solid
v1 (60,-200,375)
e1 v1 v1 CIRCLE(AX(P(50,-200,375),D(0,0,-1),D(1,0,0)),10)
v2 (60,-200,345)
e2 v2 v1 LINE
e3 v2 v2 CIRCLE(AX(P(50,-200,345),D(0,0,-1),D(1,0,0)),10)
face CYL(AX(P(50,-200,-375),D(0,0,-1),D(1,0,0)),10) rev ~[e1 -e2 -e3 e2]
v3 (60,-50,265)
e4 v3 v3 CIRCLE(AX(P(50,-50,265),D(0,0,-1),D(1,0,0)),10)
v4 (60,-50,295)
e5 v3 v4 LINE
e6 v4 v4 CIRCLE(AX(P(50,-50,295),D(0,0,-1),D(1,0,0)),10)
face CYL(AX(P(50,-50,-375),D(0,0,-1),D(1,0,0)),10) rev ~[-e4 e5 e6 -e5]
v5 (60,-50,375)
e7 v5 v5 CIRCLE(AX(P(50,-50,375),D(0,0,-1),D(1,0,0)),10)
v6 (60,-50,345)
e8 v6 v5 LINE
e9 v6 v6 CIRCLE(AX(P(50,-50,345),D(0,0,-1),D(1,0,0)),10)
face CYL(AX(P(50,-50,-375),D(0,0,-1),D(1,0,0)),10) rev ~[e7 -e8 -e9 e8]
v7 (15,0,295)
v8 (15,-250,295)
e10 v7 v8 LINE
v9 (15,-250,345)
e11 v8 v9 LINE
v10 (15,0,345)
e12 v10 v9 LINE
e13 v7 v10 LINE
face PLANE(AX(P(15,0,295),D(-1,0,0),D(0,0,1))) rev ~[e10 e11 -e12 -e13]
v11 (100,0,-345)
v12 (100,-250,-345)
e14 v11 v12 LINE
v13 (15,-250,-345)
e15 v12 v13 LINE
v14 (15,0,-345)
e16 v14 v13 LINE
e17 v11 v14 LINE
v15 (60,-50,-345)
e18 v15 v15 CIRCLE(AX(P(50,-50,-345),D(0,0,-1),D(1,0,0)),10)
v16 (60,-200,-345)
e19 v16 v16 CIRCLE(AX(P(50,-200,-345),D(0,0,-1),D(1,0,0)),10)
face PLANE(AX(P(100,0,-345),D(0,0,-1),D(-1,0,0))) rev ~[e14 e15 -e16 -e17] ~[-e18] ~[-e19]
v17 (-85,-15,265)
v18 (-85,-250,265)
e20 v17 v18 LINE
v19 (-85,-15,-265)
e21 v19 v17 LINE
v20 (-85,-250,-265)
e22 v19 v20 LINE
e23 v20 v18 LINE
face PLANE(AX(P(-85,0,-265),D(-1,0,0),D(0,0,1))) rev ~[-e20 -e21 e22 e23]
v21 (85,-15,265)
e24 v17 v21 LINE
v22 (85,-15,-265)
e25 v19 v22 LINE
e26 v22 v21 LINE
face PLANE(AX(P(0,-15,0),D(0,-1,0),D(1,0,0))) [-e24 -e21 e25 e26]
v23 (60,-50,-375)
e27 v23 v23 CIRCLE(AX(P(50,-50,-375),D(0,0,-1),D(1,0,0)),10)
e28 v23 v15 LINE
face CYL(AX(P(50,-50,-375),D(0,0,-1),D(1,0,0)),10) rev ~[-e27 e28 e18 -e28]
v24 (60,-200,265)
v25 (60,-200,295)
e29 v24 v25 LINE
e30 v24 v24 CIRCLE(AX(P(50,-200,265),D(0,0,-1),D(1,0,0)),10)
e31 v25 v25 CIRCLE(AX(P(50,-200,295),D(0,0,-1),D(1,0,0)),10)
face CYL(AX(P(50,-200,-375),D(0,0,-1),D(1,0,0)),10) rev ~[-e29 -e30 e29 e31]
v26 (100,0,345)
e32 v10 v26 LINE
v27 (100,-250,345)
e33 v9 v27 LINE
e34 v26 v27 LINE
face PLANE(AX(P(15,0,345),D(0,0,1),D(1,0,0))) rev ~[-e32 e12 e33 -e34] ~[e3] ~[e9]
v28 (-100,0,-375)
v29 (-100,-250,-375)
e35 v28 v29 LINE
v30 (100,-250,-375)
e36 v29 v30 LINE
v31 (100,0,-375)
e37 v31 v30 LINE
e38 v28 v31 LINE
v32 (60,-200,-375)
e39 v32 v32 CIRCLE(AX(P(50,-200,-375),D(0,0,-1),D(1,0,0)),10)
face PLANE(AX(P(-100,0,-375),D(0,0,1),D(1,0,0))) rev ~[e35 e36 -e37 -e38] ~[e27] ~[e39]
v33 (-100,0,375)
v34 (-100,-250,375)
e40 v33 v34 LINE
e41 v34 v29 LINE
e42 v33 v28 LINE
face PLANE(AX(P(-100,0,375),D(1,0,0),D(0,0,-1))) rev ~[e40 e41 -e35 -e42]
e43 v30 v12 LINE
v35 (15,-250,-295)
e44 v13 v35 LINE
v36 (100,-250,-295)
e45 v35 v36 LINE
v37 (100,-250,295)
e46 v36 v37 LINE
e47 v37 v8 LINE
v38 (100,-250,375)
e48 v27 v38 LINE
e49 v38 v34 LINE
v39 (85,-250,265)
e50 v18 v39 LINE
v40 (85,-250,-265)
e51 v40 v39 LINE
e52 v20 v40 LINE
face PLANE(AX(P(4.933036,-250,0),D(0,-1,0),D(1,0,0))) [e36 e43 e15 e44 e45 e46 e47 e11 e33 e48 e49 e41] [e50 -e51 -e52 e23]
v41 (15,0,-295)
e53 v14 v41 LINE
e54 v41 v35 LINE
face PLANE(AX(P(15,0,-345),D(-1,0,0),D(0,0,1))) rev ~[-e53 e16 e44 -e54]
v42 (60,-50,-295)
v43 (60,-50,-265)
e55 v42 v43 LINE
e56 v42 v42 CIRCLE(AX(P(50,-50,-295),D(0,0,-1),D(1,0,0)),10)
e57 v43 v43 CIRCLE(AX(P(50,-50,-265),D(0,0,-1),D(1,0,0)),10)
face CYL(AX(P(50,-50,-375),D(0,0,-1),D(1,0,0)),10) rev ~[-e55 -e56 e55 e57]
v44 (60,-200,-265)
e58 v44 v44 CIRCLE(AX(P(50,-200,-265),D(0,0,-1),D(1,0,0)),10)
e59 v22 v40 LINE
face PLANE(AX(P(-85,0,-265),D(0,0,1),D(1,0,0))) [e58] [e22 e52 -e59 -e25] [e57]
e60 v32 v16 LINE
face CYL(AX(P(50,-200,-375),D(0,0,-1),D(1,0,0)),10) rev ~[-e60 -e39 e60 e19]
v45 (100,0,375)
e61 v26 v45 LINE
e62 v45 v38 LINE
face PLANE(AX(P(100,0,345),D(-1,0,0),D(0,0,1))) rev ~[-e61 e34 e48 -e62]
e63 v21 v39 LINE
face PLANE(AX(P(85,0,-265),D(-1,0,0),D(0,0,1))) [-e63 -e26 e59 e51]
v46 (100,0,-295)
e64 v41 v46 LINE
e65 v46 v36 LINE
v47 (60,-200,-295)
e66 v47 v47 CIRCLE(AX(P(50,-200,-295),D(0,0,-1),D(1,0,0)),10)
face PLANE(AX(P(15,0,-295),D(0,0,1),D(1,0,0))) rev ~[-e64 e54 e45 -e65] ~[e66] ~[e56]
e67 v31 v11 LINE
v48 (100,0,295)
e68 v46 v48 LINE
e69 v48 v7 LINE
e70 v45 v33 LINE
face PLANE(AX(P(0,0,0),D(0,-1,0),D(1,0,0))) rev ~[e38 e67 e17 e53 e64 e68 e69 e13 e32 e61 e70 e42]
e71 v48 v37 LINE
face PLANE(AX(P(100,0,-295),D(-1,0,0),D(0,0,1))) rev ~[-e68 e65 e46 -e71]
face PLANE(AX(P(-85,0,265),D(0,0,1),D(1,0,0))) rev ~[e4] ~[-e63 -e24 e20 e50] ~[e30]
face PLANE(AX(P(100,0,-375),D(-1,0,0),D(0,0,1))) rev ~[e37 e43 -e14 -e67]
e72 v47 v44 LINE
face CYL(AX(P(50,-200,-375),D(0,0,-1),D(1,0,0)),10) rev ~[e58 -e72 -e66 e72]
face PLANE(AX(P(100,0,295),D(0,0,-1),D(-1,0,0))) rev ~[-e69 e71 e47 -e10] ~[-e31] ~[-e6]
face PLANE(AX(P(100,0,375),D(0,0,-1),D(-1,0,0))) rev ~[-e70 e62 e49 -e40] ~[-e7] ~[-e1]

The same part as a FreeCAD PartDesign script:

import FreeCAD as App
import Part
import Sketcher
from FreeCAD import Vector
Q = App.Units.Quantity

doc = App.newDocument("Part")
params = doc.addObject("Spreadsheet::Sheet", "Params")
for row, (alias, value) in enumerate([
    ("sketch1_width", "200 mm"),
    ("sketch1_width2", "85 mm"),
    ("sketch1_width3", "170 mm"),
    ("sketch1_height", "30 mm"),
    ("sketch1_height2", "750 mm"),
    ("pad1_length", "250 mm"),
    ("sketch2_width", "170 mm"),
    ("sketch2_height", "530 mm"),
    ("pad2_length", "15 mm"),
    ("sketch3_diameter", "20 mm"),
    ("pocket1_length", "750 mm"),
], start=1):
    params.set(f"A{row}", alias)
    params.set(f"B{row}", "=" + value)
    params.setAlias(f"B{row}", alias)

body = doc.addObject("PartDesign::Body", "Body")

# Sketch on XZ plane
sketch1 = body.newObject("Sketcher::SketchObject", "Sketch")
sketch1.AttachmentSupport = (doc.getObject("XZ_Plane"), [""])
sketch1.MapMode = "FlatFace"
sketch1.addGeometry([
    Part.LineSegment(Vector(100, 345, 0), Vector(100, 375, 0)),  # 0
    Part.LineSegment(Vector(100, 375, 0), Vector(-100, 375, 0)),  # 1
    Part.LineSegment(Vector(-100, 375, 0), Vector(-100, -375, 0)),  # 2
    Part.LineSegment(Vector(-100, -375, 0), Vector(100, -375, 0)),  # 3
    Part.LineSegment(Vector(100, -375, 0), Vector(100, -345, 0)),  # 4
    Part.LineSegment(Vector(100, -345, 0), Vector(15, -345, 0)),  # 5
    Part.LineSegment(Vector(15, -345, 0), Vector(15, -295, 0)),  # 6
    Part.LineSegment(Vector(15, -295, 0), Vector(100, -295, 0)),  # 7
    Part.LineSegment(Vector(100, -295, 0), Vector(100, 295, 0)),  # 8
    Part.LineSegment(Vector(100, 295, 0), Vector(15, 295, 0)),  # 9
    Part.LineSegment(Vector(15, 295, 0), Vector(15, 345, 0)),  # 10
    Part.LineSegment(Vector(15, 345, 0), Vector(100, 345, 0)),  # 11
    Part.LineSegment(Vector(85, -265, 0), Vector(-85, -265, 0)),  # 12
    Part.LineSegment(Vector(-85, -265, 0), Vector(-85, 265, 0)),  # 13
    Part.LineSegment(Vector(-85, 265, 0), Vector(85, 265, 0)),  # 14
    Part.LineSegment(Vector(85, 265, 0), Vector(85, -265, 0)),  # 15
], False)
sketch1.addConstraint([
    Sketcher.Constraint("Coincident", 0, 2, 1, 1),
    Sketcher.Constraint("Coincident", 1, 2, 2, 1),
    Sketcher.Constraint("Coincident", 2, 2, 3, 1),
    Sketcher.Constraint("Coincident", 3, 2, 4, 1),
    Sketcher.Constraint("Coincident", 4, 2, 5, 1),
    Sketcher.Constraint("Coincident", 5, 2, 6, 1),
    Sketcher.Constraint("Coincident", 6, 2, 7, 1),
    Sketcher.Constraint("Coincident", 7, 2, 8, 1),
    Sketcher.Constraint("Coincident", 8, 2, 9, 1),
    Sketcher.Constraint("Coincident", 9, 2, 10, 1),
    Sketcher.Constraint("Coincident", 10, 2, 11, 1),
    Sketcher.Constraint("Coincident", 11, 2, 0, 1),
    Sketcher.Constraint("Coincident", 12, 2, 13, 1),
    Sketcher.Constraint("Coincident", 13, 2, 14, 1),
    Sketcher.Constraint("Coincident", 14, 2, 15, 1),
    Sketcher.Constraint("Coincident", 15, 2, 12, 1),
    Sketcher.Constraint("Vertical", 0),
    Sketcher.Constraint("Horizontal", 1),
    Sketcher.Constraint("Vertical", 2),
    Sketcher.Constraint("Horizontal", 3),
    Sketcher.Constraint("Vertical", 4),
    Sketcher.Constraint("Horizontal", 5),
    Sketcher.Constraint("Vertical", 6),
    Sketcher.Constraint("Horizontal", 7),
    Sketcher.Constraint("Vertical", 8),
    Sketcher.Constraint("Horizontal", 9),
    Sketcher.Constraint("Vertical", 10),
    Sketcher.Constraint("Horizontal", 11),
    Sketcher.Constraint("Horizontal", 12),
    Sketcher.Constraint("Vertical", 13),
    Sketcher.Constraint("Horizontal", 14),
    Sketcher.Constraint("Vertical", 15),
    Sketcher.Constraint("Symmetric", 0, 2, 2, 2, -1, 1),
    Sketcher.Constraint("Symmetric", 12, 2, 14, 2, -1, 1),
    Sketcher.Constraint("Symmetric", 6, 2, 9, 2, -1),
    Sketcher.Constraint("Symmetric", 4, 2, 11, 2, -1),
    Sketcher.Constraint("Vertical", 4, 2, 7, 2),
    Sketcher.Constraint("DistanceX", 1, 2, 1, 1, Q("200 mm")),
    Sketcher.Constraint("DistanceX", 5, 2, 5, 1, Q("85 mm")),
    Sketcher.Constraint("DistanceX", 12, 2, 12, 1, Q("170 mm")),
    Sketcher.Constraint("DistanceY", 0, 1, 0, 2, Q("30 mm")),
    Sketcher.Constraint("DistanceY", 2, 2, 2, 1, Q("750 mm")),
    Sketcher.Constraint("DistanceY", 6, 1, 6, 2, Q("50 mm")),
    Sketcher.Constraint("DistanceY", 13, 1, 13, 2, Q("530 mm")),
])
sketch1.setExpression("Constraints[37]", "Params.sketch1_width")
sketch1.setExpression("Constraints[38]", "Params.sketch1_width2")
sketch1.setExpression("Constraints[39]", "Params.sketch1_width3")
sketch1.setExpression("Constraints[40]", "Params.sketch1_height")
sketch1.setExpression("Constraints[41]", "Params.sketch1_height2")
pad1 = body.newObject("PartDesign::Pad", "Pad")
pad1.Profile = sketch1
pad1.setExpression("Length", "Params.pad1_length")

# Sketch on XZ plane
sketch2 = body.newObject("Sketcher::SketchObject", "Sketch001")
sketch2.AttachmentSupport = (doc.getObject("XZ_Plane"), [""])
sketch2.MapMode = "FlatFace"
sketch2.addGeometry([
    Part.LineSegment(Vector(-85, 265, 0), Vector(-85, -265, 0)),
    Part.LineSegment(Vector(-85, -265, 0), Vector(85, -265, 0)),
    Part.LineSegment(Vector(85, -265, 0), Vector(85, 265, 0)),
    Part.LineSegment(Vector(85, 265, 0), Vector(-85, 265, 0)),
], False)
sketch2.addConstraint([
    Sketcher.Constraint("Coincident", 0, 2, 1, 1),
    Sketcher.Constraint("Coincident", 1, 2, 2, 1),
    Sketcher.Constraint("Coincident", 2, 2, 3, 1),
    Sketcher.Constraint("Coincident", 3, 2, 0, 1),
    Sketcher.Constraint("Vertical", 0),
    Sketcher.Constraint("Horizontal", 1),
    Sketcher.Constraint("Vertical", 2),
    Sketcher.Constraint("Horizontal", 3),
    Sketcher.Constraint("Symmetric", 0, 2, 2, 2, -1, 1),
    Sketcher.Constraint("DistanceX", 1, 1, 1, 2, Q("170 mm")),
    Sketcher.Constraint("DistanceY", 0, 2, 0, 1, Q("530 mm")),
])
sketch2.setExpression("Constraints[9]", "Params.sketch2_width")
sketch2.setExpression("Constraints[10]", "Params.sketch2_height")
pad2 = body.newObject("PartDesign::Pad", "Pad001")
pad2.Profile = sketch2
pad2.setExpression("Length", "Params.pad2_length")

# Sketch on XY plane
sketch3 = body.newObject("Sketcher::SketchObject", "Sketch002")
sketch3.AttachmentSupport = (doc.getObject("XY_Plane"), [""])
sketch3.MapMode = "FlatFace"
sketch3.AttachmentOffset = App.Placement(Vector(0, 0, -375), App.Rotation())
sketch3.addGeometry([
    Part.Circle(Vector(50, -200, 0), Vector(0, 0, 1), 10),
    Part.Circle(Vector(50, -50, 0), Vector(0, 0, 1), 10),
], False)
sketch3.addConstraint([
    Sketcher.Constraint("Equal", 0, 1),
    Sketcher.Constraint("Vertical", 0, 3, 1, 3),
    Sketcher.Constraint("Diameter", 0, Q("20 mm")),
    Sketcher.Constraint("DistanceX", -1, 1, 0, 3, Q("50 mm")),
    Sketcher.Constraint("DistanceY", 0, 3, -1, 1, Q("200 mm")),
    Sketcher.Constraint("DistanceY", 1, 3, -1, 1, Q("50 mm")),
])
sketch3.setExpression("Constraints[2]", "Params.sketch3_diameter")
pocket1 = body.newObject("PartDesign::Pocket", "Pocket")
pocket1.Profile = sketch3
pocket1.setExpression("Length", "Params.pocket1_length")
pocket1.Reversed = True

doc.recompute()
